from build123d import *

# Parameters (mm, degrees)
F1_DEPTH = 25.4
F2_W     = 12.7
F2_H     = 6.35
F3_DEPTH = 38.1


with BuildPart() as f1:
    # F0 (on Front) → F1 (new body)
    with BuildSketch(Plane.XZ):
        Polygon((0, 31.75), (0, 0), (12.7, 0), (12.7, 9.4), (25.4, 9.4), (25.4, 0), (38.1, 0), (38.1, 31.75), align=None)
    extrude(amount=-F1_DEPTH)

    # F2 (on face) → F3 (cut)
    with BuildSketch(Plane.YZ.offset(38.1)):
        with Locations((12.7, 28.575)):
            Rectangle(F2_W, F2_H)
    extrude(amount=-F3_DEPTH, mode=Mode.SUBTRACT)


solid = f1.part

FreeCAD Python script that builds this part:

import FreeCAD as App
import Part
import Sketcher
Q = App.Units.Quantity


def add_polygon(sketch, points):
    """Adds a closed chain of lines whose ends are joined by coincident constraints."""
    first, n = sketch.GeometryCount, len(points)
    for a, b in zip(points, points[1:] + points[:1]):
        sketch.addGeometry(Part.LineSegment(App.Vector(*a, 0), App.Vector(*b, 0)), False)
    for i in range(n):
        sketch.addConstraint(Sketcher.Constraint("Coincident", first + i, 2, first + (i + 1) % n, 1))

doc = App.newDocument("Part")
params = doc.addObject("Spreadsheet::Sheet", "Params")
for row, (alias, value) in enumerate([
    ("sketch1_width", "0.5 in"),
    ("sketch1_height", "1.25 in"),
    ("pad1_length", "1 in"),
    ("sketch2_width", "0.5 in"),
    ("sketch2_height", "0.25 in"),
    ("pocket1_length", "1.5 in"),
], start=1):
    params.set(f"A{row}", alias)
    params.set(f"B{row}", "=" + value)
    params.setAlias(f"B{row}", alias)

body = doc.addObject("PartDesign::Body", "Body")

sketch1 = body.newObject("Sketcher::SketchObject", "Sketch")
sketch1.AttachmentSupport = (doc.getObject("XZ_Plane"), [""])
sketch1.MapMode = "FlatFace"
add_polygon(sketch1, [(0, 31.75), (0, 0), (12.7, 0), (12.7, 9.4), (25.4, 9.4), (25.4, 0), (38.1, 0), (38.1, 31.75)])
sketch1.addConstraint([
    Sketcher.Constraint("Vertical", 0),
    Sketcher.Constraint("Horizontal", 1),
    Sketcher.Constraint("Vertical", 2),
    Sketcher.Constraint("Horizontal", 3),
    Sketcher.Constraint("Vertical", 4),
    Sketcher.Constraint("Horizontal", 5),
    Sketcher.Constraint("Vertical", 6),
    Sketcher.Constraint("Horizontal", 7),
    Sketcher.Constraint("Coincident", 0, 2, -1, 1),
    Sketcher.Constraint("PointOnObject", 4, 2, -1),
    Sketcher.Constraint("Equal", 1, 3),
    Sketcher.Constraint("Equal", 3, 5),
    Sketcher.Constraint("DistanceX", 1, 1, 1, 2, Q("0.5 in")),
    Sketcher.Constraint("DistanceY", 0, 2, 0, 1, Q("1.25 in")),
    Sketcher.Constraint("DistanceY", 2, 1, 2, 2, Q("9.4 mm")),
])
sketch1.setExpression("Constraints[20]", "Params.sketch1_width")
sketch1.setExpression("Constraints[21]", "Params.sketch1_height")
pad1 = body.newObject("PartDesign::Pad", "Pad")
pad1.Profile = sketch1
pad1.setExpression("Length", "Params.pad1_length")
pad1.Reversed = True

sketch2 = body.newObject("Sketcher::SketchObject", "Sketch001")
sketch2.AttachmentSupport = (doc.getObject("YZ_Plane"), [""])
sketch2.MapMode = "FlatFace"
sketch2.AttachmentOffset = App.Placement(App.Vector(0, 0, 1.5 * 25.4), App.Rotation())
add_polygon(sketch2, [(6.35, 31.75), (6.35, 25.4), (19.05, 25.4), (19.05, 31.75)])
sketch2.addConstraint([
    Sketcher.Constraint("Vertical", 0),
    Sketcher.Constraint("Horizontal", 1),
    Sketcher.Constraint("Vertical", 2),
    Sketcher.Constraint("Horizontal", 3),
    Sketcher.Constraint("DistanceX", 1, 1, 1, 2, Q("0.5 in")),
    Sketcher.Constraint("DistanceY", -1, 1, 0, 2, Q("1 in")),
    Sketcher.Constraint("DistanceY", 0, 2, 0, 1, Q("0.25 in")),
    Sketcher.Constraint("DistanceX", -1, 1, 0, 2, Q("0.25 in")),
])
sketch2.setExpression("Constraints[8]", "Params.sketch2_width")
sketch2.setExpression("Constraints[10]", "Params.sketch2_height")
pocket1 = body.newObject("PartDesign::Pocket", "Pocket")
pocket1.Profile = sketch2
pocket1.setExpression("Length", "Params.pocket1_length")

doc.recompute()
